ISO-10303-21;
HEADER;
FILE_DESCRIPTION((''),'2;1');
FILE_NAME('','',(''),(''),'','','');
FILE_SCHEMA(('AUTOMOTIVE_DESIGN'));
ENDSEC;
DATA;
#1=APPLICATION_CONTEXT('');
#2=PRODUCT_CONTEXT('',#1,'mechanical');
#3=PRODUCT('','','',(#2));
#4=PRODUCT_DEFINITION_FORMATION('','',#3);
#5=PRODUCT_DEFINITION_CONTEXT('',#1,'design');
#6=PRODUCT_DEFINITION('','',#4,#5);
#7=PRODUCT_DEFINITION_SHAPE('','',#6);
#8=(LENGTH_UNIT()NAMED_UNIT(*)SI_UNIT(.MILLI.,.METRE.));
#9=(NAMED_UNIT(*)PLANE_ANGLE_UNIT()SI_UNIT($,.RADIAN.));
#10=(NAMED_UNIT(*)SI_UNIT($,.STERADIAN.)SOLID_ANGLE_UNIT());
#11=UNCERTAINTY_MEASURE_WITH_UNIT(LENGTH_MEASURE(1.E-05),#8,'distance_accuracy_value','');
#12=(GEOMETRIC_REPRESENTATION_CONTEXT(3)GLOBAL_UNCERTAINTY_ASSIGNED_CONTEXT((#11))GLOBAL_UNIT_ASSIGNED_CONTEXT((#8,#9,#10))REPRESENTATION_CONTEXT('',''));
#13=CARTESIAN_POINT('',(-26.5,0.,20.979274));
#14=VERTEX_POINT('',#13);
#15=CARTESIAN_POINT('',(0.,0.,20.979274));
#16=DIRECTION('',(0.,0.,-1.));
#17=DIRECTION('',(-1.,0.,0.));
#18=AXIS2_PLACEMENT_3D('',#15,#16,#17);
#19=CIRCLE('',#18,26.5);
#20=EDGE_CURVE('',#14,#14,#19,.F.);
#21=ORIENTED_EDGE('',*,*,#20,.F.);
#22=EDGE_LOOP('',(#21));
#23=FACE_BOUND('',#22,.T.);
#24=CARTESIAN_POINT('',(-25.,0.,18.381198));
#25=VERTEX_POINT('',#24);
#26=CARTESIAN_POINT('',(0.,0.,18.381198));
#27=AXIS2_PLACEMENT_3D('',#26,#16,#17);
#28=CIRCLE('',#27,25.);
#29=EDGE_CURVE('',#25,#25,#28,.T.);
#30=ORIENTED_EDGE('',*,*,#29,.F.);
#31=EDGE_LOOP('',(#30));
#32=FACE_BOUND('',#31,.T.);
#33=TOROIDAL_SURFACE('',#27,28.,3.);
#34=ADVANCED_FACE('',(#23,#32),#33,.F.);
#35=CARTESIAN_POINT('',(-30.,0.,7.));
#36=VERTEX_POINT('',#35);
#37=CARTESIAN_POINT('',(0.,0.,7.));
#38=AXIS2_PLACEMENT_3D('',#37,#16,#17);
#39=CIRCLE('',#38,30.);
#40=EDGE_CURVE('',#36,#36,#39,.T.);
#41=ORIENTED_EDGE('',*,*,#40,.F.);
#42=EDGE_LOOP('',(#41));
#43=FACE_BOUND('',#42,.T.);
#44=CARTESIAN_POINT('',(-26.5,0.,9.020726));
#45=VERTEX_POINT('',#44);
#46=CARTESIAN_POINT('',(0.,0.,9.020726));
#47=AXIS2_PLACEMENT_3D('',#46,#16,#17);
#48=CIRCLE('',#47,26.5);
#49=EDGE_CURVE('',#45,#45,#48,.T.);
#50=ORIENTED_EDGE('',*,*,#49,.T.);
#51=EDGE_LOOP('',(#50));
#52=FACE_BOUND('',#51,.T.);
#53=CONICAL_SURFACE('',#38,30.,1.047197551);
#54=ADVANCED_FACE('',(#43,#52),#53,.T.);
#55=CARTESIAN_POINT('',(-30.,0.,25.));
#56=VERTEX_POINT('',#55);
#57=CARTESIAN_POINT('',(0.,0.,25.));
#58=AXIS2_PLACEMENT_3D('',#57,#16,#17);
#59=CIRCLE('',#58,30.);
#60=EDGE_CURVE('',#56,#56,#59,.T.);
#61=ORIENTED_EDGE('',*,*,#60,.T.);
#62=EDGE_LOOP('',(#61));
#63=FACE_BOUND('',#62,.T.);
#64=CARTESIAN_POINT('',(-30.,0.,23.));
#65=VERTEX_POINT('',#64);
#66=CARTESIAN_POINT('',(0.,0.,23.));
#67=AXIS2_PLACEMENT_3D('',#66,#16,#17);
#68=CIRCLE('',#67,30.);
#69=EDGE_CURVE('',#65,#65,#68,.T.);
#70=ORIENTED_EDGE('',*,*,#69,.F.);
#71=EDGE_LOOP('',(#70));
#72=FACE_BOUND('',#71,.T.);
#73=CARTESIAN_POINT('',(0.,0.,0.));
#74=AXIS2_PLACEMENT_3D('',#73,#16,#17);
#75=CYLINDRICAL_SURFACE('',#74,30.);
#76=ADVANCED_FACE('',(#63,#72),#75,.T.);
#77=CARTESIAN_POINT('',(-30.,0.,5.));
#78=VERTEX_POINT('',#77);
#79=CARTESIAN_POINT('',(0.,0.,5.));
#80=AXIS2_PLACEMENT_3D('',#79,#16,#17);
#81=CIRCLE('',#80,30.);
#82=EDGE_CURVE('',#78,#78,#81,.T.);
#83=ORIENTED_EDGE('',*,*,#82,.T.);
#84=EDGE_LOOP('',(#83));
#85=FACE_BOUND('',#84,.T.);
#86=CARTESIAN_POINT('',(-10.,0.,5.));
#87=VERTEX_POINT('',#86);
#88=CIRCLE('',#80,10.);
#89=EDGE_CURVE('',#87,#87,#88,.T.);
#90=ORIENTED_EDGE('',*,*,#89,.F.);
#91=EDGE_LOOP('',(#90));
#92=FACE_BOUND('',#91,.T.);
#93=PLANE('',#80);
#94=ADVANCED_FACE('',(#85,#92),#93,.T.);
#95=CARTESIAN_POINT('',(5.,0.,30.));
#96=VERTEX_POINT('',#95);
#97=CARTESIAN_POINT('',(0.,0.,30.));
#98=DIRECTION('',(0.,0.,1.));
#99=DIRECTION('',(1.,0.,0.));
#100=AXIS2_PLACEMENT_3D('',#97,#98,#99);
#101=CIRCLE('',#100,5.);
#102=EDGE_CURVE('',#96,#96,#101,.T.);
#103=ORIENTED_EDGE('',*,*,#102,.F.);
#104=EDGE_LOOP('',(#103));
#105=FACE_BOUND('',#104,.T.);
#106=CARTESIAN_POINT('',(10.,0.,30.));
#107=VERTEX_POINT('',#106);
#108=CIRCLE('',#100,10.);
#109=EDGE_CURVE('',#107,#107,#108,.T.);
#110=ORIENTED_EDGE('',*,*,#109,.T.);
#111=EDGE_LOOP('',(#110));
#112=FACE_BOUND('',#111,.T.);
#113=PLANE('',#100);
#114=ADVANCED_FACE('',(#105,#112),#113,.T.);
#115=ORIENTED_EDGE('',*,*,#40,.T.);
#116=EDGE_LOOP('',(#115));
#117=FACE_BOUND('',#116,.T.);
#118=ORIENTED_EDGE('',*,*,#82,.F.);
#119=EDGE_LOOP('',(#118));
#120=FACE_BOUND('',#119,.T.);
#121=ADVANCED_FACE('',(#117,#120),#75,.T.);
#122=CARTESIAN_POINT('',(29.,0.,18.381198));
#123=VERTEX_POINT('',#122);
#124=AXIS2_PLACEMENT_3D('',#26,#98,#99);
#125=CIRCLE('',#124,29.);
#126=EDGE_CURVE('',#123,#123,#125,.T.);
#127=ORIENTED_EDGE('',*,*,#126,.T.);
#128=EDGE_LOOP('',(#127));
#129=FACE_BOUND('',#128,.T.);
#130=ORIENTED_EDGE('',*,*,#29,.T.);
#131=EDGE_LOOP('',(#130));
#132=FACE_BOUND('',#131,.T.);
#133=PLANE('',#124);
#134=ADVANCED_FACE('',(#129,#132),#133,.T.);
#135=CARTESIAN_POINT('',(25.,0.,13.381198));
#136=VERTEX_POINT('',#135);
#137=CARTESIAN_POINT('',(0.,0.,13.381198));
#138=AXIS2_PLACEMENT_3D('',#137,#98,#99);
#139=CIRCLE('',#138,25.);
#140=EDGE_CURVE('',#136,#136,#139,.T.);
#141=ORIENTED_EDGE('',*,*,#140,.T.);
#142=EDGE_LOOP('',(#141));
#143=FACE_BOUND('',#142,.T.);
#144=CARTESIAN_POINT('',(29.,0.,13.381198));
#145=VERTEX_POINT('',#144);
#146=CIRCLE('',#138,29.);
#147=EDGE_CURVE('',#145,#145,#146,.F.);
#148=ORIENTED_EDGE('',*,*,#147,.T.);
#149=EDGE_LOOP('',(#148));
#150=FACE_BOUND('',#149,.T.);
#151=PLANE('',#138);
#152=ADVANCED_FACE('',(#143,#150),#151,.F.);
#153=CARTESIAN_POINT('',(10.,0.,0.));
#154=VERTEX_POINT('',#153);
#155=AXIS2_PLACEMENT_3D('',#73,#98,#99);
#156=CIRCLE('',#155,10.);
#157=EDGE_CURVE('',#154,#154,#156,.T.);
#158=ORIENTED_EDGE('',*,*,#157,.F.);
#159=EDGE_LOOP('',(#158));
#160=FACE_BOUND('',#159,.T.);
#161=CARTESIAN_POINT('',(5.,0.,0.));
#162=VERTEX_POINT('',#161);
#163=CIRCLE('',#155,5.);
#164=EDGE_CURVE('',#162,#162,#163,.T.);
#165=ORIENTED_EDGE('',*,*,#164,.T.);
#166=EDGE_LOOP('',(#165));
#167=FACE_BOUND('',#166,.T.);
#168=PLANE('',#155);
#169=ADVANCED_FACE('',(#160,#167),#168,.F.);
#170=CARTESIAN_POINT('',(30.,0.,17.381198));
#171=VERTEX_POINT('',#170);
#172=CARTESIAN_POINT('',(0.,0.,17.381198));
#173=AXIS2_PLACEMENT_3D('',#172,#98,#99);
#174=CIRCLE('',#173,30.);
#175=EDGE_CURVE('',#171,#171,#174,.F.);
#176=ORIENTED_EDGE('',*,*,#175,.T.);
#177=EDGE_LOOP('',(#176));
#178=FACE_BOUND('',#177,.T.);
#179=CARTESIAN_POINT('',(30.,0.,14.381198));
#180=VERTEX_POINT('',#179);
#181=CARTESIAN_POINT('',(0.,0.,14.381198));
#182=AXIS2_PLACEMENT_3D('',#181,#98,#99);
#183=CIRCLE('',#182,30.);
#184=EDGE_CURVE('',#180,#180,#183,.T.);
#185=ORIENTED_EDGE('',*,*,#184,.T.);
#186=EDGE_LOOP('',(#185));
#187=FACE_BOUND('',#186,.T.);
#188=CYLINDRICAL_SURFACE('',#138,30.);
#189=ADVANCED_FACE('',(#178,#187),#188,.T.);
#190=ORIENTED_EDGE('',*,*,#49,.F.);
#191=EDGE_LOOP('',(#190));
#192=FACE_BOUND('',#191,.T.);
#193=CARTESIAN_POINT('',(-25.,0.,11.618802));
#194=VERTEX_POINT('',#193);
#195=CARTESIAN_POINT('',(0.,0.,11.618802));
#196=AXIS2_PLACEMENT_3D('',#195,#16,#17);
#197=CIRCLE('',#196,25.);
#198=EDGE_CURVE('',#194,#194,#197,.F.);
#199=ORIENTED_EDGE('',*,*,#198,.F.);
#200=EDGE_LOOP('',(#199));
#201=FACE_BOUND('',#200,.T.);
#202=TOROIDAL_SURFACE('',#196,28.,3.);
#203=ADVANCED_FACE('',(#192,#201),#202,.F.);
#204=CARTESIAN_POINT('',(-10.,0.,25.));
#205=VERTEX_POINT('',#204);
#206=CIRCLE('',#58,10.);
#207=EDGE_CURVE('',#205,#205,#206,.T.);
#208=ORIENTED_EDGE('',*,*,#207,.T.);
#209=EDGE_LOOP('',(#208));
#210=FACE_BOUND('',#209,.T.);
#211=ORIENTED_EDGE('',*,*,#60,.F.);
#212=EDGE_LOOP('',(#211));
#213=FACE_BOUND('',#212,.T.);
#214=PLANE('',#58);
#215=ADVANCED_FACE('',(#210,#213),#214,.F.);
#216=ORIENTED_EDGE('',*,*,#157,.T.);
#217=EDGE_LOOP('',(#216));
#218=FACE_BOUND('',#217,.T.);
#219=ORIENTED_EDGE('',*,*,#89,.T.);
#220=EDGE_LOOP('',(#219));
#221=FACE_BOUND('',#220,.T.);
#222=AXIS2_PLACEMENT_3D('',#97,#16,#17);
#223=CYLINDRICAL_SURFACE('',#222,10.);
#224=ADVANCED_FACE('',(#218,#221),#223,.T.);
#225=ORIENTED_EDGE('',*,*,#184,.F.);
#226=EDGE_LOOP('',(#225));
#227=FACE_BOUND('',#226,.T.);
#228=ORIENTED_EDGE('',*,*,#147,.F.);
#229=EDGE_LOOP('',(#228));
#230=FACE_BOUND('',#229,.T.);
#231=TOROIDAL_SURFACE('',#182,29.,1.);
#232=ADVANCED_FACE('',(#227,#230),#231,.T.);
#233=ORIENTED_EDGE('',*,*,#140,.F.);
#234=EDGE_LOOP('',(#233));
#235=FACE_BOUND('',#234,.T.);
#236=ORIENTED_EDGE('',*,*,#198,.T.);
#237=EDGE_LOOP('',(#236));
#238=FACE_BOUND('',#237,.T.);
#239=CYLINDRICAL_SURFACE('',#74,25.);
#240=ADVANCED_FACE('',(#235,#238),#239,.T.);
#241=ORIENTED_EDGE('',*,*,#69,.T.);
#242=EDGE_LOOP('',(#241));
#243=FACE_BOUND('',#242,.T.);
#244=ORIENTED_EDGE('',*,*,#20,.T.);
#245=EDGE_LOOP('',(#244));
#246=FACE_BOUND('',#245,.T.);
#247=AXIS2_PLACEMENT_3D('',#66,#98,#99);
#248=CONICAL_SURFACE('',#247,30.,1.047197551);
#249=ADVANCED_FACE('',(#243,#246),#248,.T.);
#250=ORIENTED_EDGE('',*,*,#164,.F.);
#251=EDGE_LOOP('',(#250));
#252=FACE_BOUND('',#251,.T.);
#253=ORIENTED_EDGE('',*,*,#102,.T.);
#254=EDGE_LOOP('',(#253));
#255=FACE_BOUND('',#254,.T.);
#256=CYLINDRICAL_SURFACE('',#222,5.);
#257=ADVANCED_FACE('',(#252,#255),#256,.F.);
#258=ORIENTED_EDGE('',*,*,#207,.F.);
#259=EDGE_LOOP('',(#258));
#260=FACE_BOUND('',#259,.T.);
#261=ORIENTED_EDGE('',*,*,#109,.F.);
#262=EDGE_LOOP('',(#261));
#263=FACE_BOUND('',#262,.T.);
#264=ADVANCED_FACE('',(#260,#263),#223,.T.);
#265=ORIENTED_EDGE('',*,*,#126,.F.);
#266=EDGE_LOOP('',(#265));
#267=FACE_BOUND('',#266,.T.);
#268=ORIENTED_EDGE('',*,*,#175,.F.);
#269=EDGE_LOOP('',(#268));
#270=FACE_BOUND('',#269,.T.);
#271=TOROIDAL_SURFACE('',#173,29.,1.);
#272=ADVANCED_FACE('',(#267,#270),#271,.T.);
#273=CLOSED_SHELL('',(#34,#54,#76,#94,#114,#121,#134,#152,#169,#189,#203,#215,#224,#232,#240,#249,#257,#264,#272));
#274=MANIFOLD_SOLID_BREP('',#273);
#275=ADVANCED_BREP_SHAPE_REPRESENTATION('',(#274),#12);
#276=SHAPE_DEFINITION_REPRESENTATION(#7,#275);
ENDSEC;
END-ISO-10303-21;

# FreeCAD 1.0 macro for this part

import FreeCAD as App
import Part
import Sketcher
from FreeCAD import Vector
Q = App.Units.Quantity


def edges_at(feature, points):
    """Names of the edges that pass closest to the given points."""
    edges = feature.Shape.Edges
    near = lambda p: min(range(len(edges)), key=lambda i: edges[i].distToShape(Part.Vertex(*p))[0])
    return sorted({f"Edge{near(p) + 1}" for p in points})

doc = App.newDocument("Part")
body = doc.addObject("PartDesign::Body", "Body")

sketch1 = body.newObject("Sketcher::SketchObject", "Sketch")
sketch1.AttachmentSupport = (doc.getObject("XY_Plane"), [""])
sketch1.MapMode = "FlatFace"
sketch1.addGeometry([
    Part.Circle(Vector(0, 0, 0), Vector(0, 0, 1), 10),
    Part.Circle(Vector(0, 0, 0), Vector(0, 0, 1), 5),
], False)
sketch1.addConstraint([
    Sketcher.Constraint("Coincident", 0, 3, -1, 1),
    Sketcher.Constraint("Coincident", 1, 3, -1, 1),
    Sketcher.Constraint("Diameter", 0, 20.0),
    Sketcher.Constraint("Diameter", 1, 10.0),
])
pad1 = body.newObject("PartDesign::Pad", "Pad")
pad1.Profile = sketch1
pad1.Length = 30

sketch2 = body.newObject("Sketcher::SketchObject", "Sketch001")
sketch2.AttachmentSupport = (doc.getObject("XZ_Plane"), [""])
sketch2.MapMode = "FlatFace"
sketch2.addGeometry([
    Part.LineSegment(Vector(30, 5, 0), Vector(10, 5, 0)),
    Part.LineSegment(Vector(10, 5, 0), Vector(10, 25, 0)),
    Part.LineSegment(Vector(10, 25, 0), Vector(30, 25, 0)),
    Part.LineSegment(Vector(30, 25, 0), Vector(30, 23, 0)),
    Part.LineSegment(Vector(30, 23, 0), Vector(25, 20.1, 0)),
    Part.LineSegment(Vector(25, 20.1, 0), Vector(25, 9.9, 0)),
    Part.LineSegment(Vector(25, 9.9, 0), Vector(30, 7, 0)),
    Part.LineSegment(Vector(30, 7, 0), Vector(30, 5, 0)),
], False)
sketch2.addConstraint([
    Sketcher.Constraint("Coincident", 0, 2, 1, 1),
    Sketcher.Constraint("Coincident", 1, 2, 2, 1),
    Sketcher.Constraint("Coincident", 2, 2, 3, 1),
    Sketcher.Constraint("Coincident", 3, 2, 4, 1),
    Sketcher.Constraint("Coincident", 4, 2, 5, 1),
    Sketcher.Constraint("Coincident", 5, 2, 6, 1),
    Sketcher.Constraint("Coincident", 6, 2, 7, 1),
    Sketcher.Constraint("Coincident", 7, 2, 0, 1),
    Sketcher.Constraint("Horizontal", 0),
    Sketcher.Constraint("Vertical", 1),
    Sketcher.Constraint("Horizontal", 2),
    Sketcher.Constraint("Vertical", 3),
    Sketcher.Constraint("Vertical", 5),
    Sketcher.Constraint("Vertical", 7),
    Sketcher.Constraint("Vertical", 3, 2, 6, 2),
    Sketcher.Constraint("Equal", 2, 1),
    Sketcher.Constraint("Equal", 3, 7),
    Sketcher.Constraint("Equal", 4, 6),
    Sketcher.Constraint("DistanceX", 0, 2, 0, 1, 20.0),
    Sketcher.Constraint("DistanceY", 3, 2, 3, 1, 2.0),
    Sketcher.Constraint("Angle", 4, Q("-150 deg")),
    Sketcher.Constraint("DistanceX", -1, 1, 0, 2, 10.0),
    Sketcher.Constraint("DistanceY", -1, 1, 0, 2, 5.0),
    Sketcher.Constraint("DistanceX", -1, 1, 4, 2, 25.0),
])
revolution = body.newObject("PartDesign::Revolution", "Revolution")
revolution.Profile = sketch2
revolution.ReferenceAxis = (sketch2, ["V_Axis"])
revolution.Angle = 360
doc.recompute()

fillet = body.newObject("PartDesign::Fillet", "Fillet")
fillet.Base = (revolution, edges_at(revolution, [(-25, 0, 20.113), (-25, 0, 9.887)]))
fillet.Radius = 3

sketch3 = body.newObject("Sketcher::SketchObject", "Sketch002")
sketch3.AttachmentSupport = (doc.getObject("XY_Plane"), [""])
sketch3.MapMode = "FlatFace"
sketch3.AttachmentOffset = App.Placement(Vector(0, 0, 18.381198), App.Rotation())
sketch3.addGeometry([
    Part.Circle(Vector(0, 0, 0), Vector(0, 0, 1), 30),
    Part.Circle(Vector(0, 0, 0), Vector(0, 0, 1), 25),
], False)
sketch3.addConstraint([
    Sketcher.Constraint("Coincident", 0, 3, -1, 1),
    Sketcher.Constraint("Coincident", 1, 3, -1, 1),
    Sketcher.Constraint("Diameter", 0, 60.0),
    Sketcher.Constraint("Diameter", 1, 50.0),
])
pad2 = body.newObject("PartDesign::Pad", "Pad001")
pad2.Profile = sketch3
pad2.Length = 5
pad2.Reversed = True
doc.recompute()

fillet2 = body.newObject("PartDesign::Fillet", "Fillet001")
fillet2.Base = (pad2, edges_at(pad2, [(-30, 0, 13.381), (-30, 0, 18.381)]))
fillet2.Radius = 1

doc.recompute()
